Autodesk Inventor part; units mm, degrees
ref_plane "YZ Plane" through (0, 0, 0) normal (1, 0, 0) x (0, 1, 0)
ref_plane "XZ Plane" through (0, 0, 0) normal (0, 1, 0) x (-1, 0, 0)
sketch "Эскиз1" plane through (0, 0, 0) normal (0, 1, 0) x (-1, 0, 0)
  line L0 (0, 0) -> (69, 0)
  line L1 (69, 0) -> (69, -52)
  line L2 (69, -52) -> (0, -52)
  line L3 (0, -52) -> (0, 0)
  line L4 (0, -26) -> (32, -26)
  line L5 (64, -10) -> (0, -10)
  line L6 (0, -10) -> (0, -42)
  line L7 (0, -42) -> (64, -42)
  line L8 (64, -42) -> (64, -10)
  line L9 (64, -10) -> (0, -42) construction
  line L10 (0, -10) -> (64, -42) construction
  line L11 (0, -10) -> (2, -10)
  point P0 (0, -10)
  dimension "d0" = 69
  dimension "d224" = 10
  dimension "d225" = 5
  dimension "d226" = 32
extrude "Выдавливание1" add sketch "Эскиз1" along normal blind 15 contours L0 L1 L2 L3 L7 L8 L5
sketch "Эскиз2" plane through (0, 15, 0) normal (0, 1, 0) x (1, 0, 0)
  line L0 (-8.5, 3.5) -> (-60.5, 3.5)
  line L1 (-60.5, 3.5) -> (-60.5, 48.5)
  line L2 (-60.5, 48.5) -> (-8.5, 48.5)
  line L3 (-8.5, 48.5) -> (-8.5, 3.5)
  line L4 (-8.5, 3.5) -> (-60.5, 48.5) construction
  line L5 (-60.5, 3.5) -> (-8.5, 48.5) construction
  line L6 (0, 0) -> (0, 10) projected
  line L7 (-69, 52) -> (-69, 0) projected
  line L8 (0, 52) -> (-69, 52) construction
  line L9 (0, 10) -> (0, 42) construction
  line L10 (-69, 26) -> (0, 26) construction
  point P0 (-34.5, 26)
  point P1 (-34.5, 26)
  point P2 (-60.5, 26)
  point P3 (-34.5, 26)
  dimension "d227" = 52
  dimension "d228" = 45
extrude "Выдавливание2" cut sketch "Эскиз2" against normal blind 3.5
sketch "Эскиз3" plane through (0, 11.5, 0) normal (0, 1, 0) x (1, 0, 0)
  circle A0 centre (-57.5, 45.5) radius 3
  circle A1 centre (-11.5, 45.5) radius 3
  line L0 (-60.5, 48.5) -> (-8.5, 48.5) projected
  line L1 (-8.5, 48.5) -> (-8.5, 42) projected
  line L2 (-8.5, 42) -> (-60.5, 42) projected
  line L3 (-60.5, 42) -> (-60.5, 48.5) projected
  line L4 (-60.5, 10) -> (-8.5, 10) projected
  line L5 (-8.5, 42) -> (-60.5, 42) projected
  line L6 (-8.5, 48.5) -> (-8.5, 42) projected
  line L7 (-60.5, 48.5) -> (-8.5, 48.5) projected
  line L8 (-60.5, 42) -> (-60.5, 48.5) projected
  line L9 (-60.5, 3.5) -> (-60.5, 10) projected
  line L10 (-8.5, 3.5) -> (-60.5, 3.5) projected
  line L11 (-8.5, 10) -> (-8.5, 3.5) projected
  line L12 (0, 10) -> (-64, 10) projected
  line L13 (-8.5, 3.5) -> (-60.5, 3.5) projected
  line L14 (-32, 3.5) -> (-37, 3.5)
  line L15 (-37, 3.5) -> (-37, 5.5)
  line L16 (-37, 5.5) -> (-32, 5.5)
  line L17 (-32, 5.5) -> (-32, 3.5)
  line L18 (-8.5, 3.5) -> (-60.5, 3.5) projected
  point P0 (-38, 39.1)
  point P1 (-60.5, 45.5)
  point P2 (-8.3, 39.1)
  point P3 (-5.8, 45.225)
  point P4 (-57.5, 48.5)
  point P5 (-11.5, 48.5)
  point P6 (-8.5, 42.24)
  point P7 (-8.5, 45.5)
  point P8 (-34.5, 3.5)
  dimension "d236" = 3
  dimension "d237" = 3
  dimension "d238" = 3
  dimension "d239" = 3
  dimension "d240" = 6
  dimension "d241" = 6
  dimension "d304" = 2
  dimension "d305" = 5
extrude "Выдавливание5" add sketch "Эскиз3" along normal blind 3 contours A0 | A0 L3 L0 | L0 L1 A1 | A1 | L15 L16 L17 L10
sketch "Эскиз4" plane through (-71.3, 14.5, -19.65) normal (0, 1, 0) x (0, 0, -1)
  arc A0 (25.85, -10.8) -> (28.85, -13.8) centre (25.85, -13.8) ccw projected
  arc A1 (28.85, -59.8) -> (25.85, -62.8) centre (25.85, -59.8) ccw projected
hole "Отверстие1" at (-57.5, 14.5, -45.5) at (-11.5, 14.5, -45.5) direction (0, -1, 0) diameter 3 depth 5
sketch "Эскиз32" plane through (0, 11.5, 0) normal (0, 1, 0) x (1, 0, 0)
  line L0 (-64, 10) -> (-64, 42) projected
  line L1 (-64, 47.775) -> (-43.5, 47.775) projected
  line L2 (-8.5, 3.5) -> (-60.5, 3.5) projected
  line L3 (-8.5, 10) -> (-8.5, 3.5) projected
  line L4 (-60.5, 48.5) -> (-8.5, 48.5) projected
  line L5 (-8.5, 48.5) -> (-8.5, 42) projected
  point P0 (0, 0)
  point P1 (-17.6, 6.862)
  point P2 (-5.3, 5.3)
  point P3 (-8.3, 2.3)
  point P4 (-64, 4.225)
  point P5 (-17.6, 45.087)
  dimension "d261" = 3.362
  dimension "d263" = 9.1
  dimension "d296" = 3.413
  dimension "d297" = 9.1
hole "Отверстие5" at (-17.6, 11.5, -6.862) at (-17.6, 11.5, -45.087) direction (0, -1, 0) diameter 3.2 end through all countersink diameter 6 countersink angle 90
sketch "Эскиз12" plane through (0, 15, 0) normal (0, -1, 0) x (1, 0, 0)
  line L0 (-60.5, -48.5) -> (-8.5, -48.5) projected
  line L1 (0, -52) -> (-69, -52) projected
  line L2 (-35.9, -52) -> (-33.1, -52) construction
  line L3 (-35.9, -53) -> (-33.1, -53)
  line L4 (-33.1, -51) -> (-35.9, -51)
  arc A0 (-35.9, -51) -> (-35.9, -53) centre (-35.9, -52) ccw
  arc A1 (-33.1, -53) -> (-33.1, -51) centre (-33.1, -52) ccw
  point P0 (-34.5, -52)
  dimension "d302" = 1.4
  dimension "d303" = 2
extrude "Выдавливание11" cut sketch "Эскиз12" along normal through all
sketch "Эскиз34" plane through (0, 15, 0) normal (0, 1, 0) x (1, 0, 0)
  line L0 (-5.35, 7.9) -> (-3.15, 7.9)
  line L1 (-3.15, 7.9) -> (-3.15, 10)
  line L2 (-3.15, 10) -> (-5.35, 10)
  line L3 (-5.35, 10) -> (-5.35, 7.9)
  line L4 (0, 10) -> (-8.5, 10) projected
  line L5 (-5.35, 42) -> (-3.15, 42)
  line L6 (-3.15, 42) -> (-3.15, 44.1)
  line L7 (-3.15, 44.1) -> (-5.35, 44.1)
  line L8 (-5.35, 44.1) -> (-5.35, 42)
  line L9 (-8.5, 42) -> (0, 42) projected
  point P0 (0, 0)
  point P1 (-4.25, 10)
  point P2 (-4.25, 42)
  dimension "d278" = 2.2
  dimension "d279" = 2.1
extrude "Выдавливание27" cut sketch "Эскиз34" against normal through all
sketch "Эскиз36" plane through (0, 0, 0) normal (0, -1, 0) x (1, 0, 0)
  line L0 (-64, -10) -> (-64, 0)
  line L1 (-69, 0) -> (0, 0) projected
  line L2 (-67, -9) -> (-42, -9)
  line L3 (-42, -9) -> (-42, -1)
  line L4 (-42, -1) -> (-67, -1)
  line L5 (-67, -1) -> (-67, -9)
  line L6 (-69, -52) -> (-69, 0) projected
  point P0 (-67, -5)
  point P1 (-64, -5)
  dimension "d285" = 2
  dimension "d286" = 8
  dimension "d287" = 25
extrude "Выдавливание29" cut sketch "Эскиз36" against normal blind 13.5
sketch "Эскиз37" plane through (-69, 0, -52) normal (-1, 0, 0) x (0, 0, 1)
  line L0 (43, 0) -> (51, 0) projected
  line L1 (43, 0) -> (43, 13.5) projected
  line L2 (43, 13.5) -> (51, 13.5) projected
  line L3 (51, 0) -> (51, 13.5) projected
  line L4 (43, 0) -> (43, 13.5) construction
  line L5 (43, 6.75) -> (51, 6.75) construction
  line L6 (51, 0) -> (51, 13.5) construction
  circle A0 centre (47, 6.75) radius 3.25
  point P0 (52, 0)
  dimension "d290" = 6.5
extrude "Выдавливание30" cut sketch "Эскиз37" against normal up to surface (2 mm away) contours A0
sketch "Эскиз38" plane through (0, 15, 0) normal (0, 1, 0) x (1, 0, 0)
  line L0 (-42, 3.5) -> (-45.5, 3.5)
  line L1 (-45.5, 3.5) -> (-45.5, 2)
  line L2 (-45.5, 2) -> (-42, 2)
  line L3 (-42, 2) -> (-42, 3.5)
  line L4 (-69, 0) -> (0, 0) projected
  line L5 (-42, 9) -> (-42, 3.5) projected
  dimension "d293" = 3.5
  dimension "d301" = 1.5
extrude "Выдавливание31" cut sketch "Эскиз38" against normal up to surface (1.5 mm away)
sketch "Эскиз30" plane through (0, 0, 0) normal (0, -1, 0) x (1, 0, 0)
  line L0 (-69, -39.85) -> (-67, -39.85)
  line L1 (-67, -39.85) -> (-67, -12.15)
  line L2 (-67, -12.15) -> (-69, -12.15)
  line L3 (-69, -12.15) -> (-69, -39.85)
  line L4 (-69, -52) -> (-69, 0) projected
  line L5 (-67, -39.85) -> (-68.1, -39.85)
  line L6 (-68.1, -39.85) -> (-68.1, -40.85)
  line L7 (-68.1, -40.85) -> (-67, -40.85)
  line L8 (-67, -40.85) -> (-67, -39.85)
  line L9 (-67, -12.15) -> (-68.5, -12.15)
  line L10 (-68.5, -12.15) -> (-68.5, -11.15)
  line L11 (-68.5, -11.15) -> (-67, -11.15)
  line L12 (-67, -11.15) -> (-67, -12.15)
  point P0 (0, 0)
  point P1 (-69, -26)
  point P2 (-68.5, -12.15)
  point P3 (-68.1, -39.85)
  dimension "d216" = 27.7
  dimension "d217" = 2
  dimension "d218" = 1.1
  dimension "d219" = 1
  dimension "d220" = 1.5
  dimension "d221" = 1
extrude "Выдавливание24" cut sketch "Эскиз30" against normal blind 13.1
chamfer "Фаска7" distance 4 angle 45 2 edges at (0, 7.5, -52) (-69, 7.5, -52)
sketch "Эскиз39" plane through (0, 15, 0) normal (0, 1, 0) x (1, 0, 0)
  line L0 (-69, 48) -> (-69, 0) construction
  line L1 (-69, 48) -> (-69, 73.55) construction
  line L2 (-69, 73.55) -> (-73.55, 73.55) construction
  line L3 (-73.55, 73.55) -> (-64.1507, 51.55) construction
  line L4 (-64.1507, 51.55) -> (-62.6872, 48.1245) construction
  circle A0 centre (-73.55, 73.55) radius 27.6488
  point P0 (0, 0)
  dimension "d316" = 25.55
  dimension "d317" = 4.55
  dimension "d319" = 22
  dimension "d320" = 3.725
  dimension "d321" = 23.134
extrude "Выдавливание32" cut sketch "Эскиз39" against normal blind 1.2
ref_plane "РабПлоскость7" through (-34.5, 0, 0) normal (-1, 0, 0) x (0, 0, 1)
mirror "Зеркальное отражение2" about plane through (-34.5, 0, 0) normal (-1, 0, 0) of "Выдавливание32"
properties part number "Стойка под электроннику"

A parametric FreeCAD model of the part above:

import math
import FreeCAD as App
import Part
import Sketcher
from FreeCAD import Vector
Q = App.Units.Quantity


def edges_at(feature, points):
    """Names of the edges that pass closest to the given points."""
    edges = feature.Shape.Edges
    near = lambda p: min(range(len(edges)), key=lambda i: edges[i].distToShape(Part.Vertex(*p))[0])
    return sorted({f"Edge{near(p) + 1}" for p in points})

doc = App.newDocument("Part")
params = doc.addObject("Spreadsheet::Sheet", "Params")
for row, (alias, value) in enumerate([
    ("sketch1_width", "69 mm"),
    ("sketch1_height", "10 mm"),
    ("sketch1_height2", "32 mm"),
    ("pad1_length", "15 mm"),
    ("sketch2_width", "52 mm"),
    ("sketch2_height", "45 mm"),
    ("pocket1_length", "3.5 mm"),
    ("sketch3_radius", "3 mm"),
    ("sketch3_width", "5 mm"),
    ("sketch3_height", "2 mm"),
    ("pad2_length", "3 mm"),
    ("sketch4_diameter", "3 mm"),
    ("hole_diameter", "3 mm"),
    ("hole_depth", "5 mm"),
    ("sketch5_diameter", "3.2 mm"),
    ("hole2_diameter", "3.2 mm"),
    ("hole2_csink_diameter", "6 mm"),
    ("sketch6_radius", "1 mm"),
    ("sketch6_width", "2.8 mm"),
    ("sketch7_width", "2.2 mm"),
    ("sketch7_height", "2.1 mm"),
    ("sketch8_width", "25 mm"),
    ("sketch8_height", "8 mm"),
    ("pocket4_length", "13.5 mm"),
    ("sketch9_diameter", "6.5 mm"),
    ("pocket5_length", "2 mm"),
    ("sketch10_width", "3.5 mm"),
    ("sketch10_height", "1.5 mm"),
    ("pocket6_length", "1.5 mm"),
    ("sketch11_height", "1 mm"),
    ("sketch11_width", "1.1 mm"),
    ("sketch11_width2", "1.5 mm"),
    ("sketch11_height2", "27.7 mm"),
    ("pocket7_length", "13.1 mm"),
    ("chamfer_size", "4 mm"),
    ("pocket8_length", "1.2 mm"),
], start=1):
    params.set(f"A{row}", alias)
    params.set(f"B{row}", "=" + value)
    params.setAlias(f"B{row}", alias)

body = doc.addObject("PartDesign::Body", "Body")

# Sketch on XZ plane
sketch1 = body.newObject("Sketcher::SketchObject", "Sketch")
sketch1.AttachmentSupport = (doc.getObject("XZ_Plane"), [""])
sketch1.MapMode = "FlatFace"
sketch1.addGeometry(Part.LineSegment(Vector(-69, 0, 0), Vector(0, 0, 0)), False)
sketch1.addGeometry(Part.LineSegment(Vector(0, 0, 0), Vector(0, -10, 0)), False)
sketch1.addGeometry(Part.LineSegment(Vector(0, -10, 0), Vector(-64, -10, 0)), False)
sketch1.addGeometry(Part.LineSegment(Vector(-64, -10, 0), Vector(-64, -42, 0)), False)
sketch1.addGeometry(Part.LineSegment(Vector(-64, -42, 0), Vector(0, -42, 0)), False)
sketch1.addGeometry(Part.LineSegment(Vector(0, -42, 0), Vector(0, -52, 0)), False)
sketch1.addGeometry(Part.LineSegment(Vector(0, -52, 0), Vector(-69, -52, 0)), False)
sketch1.addGeometry(Part.LineSegment(Vector(-69, -52, 0), Vector(-69, 0, 0)), False)
sketch1.addConstraint(Sketcher.Constraint("Coincident", 0, 2, 1, 1))
sketch1.addConstraint(Sketcher.Constraint("Coincident", 1, 2, 2, 1))
sketch1.addConstraint(Sketcher.Constraint("Coincident", 2, 2, 3, 1))
sketch1.addConstraint(Sketcher.Constraint("Coincident", 3, 2, 4, 1))
sketch1.addConstraint(Sketcher.Constraint("Coincident", 4, 2, 5, 1))
sketch1.addConstraint(Sketcher.Constraint("Coincident", 5, 2, 6, 1))
sketch1.addConstraint(Sketcher.Constraint("Coincident", 6, 2, 7, 1))
sketch1.addConstraint(Sketcher.Constraint("Coincident", 7, 2, 0, 1))
sketch1.addConstraint(Sketcher.Constraint("Horizontal", 0))
sketch1.addConstraint(Sketcher.Constraint("Vertical", 1))
sketch1.addConstraint(Sketcher.Constraint("Horizontal", 2))
sketch1.addConstraint(Sketcher.Constraint("Vertical", 3))
sketch1.addConstraint(Sketcher.Constraint("Horizontal", 4))
sketch1.addConstraint(Sketcher.Constraint("Vertical", 5))
sketch1.addConstraint(Sketcher.Constraint("Horizontal", 6))
sketch1.addConstraint(Sketcher.Constraint("Vertical", 7))
sketch1.addConstraint(Sketcher.Constraint("Coincident", 0, 2, -1, 1))
sketch1.addConstraint(Sketcher.Constraint("PointOnObject", 4, 2, -2))
sketch1.addConstraint(Sketcher.Constraint("Equal", 1, 5))
sketch1.addConstraint(Sketcher.Constraint("DistanceX", 0, 1, 0, 2, Q("69 mm")))
sketch1.addConstraint(Sketcher.Constraint("DistanceY", 1, 2, 1, 1, Q("10 mm")))
sketch1.addConstraint(Sketcher.Constraint("DistanceY", 3, 2, 3, 1, Q("32 mm")))
sketch1.addConstraint(Sketcher.Constraint("DistanceX", 6, 2, 3, 2, Q("5 mm")))
sketch1.setExpression("Constraints[19]", "Params.sketch1_width")
sketch1.setExpression("Constraints[20]", "Params.sketch1_height")
sketch1.setExpression("Constraints[21]", "Params.sketch1_height2")
pad1 = body.newObject("PartDesign::Pad", "Pad")
pad1.Profile = sketch1
pad1.setExpression("Length", "Params.pad1_length")
pad1.Reversed = True

# Sketch on XZ plane
sketch2 = body.newObject("Sketcher::SketchObject", "Sketch001")
sketch2.AttachmentSupport = (doc.getObject("XZ_Plane"), [""])
sketch2.MapMode = "FlatFace"
sketch2.AttachmentOffset = App.Placement(Vector(0, 0, -15), App.Rotation())
sketch2.addGeometry(Part.LineSegment(Vector(-60, -4, 0), Vector(-8, -4, 0)), False)
sketch2.addGeometry(Part.LineSegment(Vector(-8, -4, 0), Vector(-8, -48, 0)), False)
sketch2.addGeometry(Part.LineSegment(Vector(-8, -48, 0), Vector(-60, -48, 0)), False)
sketch2.addGeometry(Part.LineSegment(Vector(-60, -48, 0), Vector(-60, -4, 0)), False)
sketch2.addConstraint(Sketcher.Constraint("Coincident", 0, 2, 1, 1))
sketch2.addConstraint(Sketcher.Constraint("Coincident", 1, 2, 2, 1))
sketch2.addConstraint(Sketcher.Constraint("Coincident", 2, 2, 3, 1))
sketch2.addConstraint(Sketcher.Constraint("Coincident", 3, 2, 0, 1))
sketch2.addConstraint(Sketcher.Constraint("Horizontal", 0))
sketch2.addConstraint(Sketcher.Constraint("Vertical", 1))
sketch2.addConstraint(Sketcher.Constraint("Horizontal", 2))
sketch2.addConstraint(Sketcher.Constraint("Vertical", 3))
sketch2.addConstraint(Sketcher.Constraint("DistanceX", 0, 1, 0, 2, Q("52 mm")))
sketch2.addConstraint(Sketcher.Constraint("DistanceY", 1, 2, 1, 1, Q("45 mm")))
sketch2.addConstraint(Sketcher.Constraint("DistanceX", 0, 2, -1, 1, Q("8.5 mm")))
sketch2.addConstraint(Sketcher.Constraint("DistanceY", 0, 2, -1, 1, Q("3.5 mm")))
sketch2.setExpression("Constraints[8]", "Params.sketch2_width")
sketch2.setExpression("Constraints[9]", "Params.sketch2_height")
pocket1 = body.newObject("PartDesign::Pocket", "Pocket")
pocket1.Profile = sketch2
pocket1.setExpression("Length", "Params.pocket1_length")
pocket1.Reversed = True

# Sketch on XZ plane
sketch3 = body.newObject("Sketcher::SketchObject", "Sketch002")
sketch3.AttachmentSupport = (doc.getObject("XZ_Plane"), [""])
sketch3.MapMode = "FlatFace"
sketch3.AttachmentOffset = App.Placement(Vector(0, 0, -11.5), App.Rotation())
sketch3.addGeometry(Part.ArcOfCircle(Part.Circle(Vector(-57.5, -45.5, 0), Vector(0, 0, 1), 3), math.radians(-90), math.radians(180)), False)
sketch3.addGeometry(Part.LineSegment(Vector(-57.5, -48.5, 0), Vector(-60.5, -48.5, 0)), False)
sketch3.addGeometry(Part.LineSegment(Vector(-60.5, -48.5, 0), Vector(-60.5, -45.5, 0)), False)
sketch3.addGeometry(Part.LineSegment(Vector(-8.5, -48.5, 0), Vector(-11.5, -48.5, 0)), False)
sketch3.addGeometry(Part.ArcOfCircle(Part.Circle(Vector(-11.5, -45.5, 0), Vector(0, 0, 1), 3), math.radians(0), math.radians(270)), False)
sketch3.addGeometry(Part.LineSegment(Vector(-8.5, -45.5, 0), Vector(-8.5, -48.5, 0)), False)
sketch3.addGeometry(Part.LineSegment(Vector(-37, -5.5, 0), Vector(-37, -3.5, 0)), False)
sketch3.addGeometry(Part.LineSegment(Vector(-37, -3.5, 0), Vector(-32, -3.5, 0)), False)
sketch3.addGeometry(Part.LineSegment(Vector(-32, -3.5, 0), Vector(-32, -5.5, 0)), False)
sketch3.addGeometry(Part.LineSegment(Vector(-32, -5.5, 0), Vector(-37, -5.5, 0)), False)
sketch3.addConstraint(Sketcher.Constraint("Tangent", 0, 1, 1, 1))
sketch3.addConstraint(Sketcher.Constraint("Coincident", 1, 2, 2, 1))
sketch3.addConstraint(Sketcher.Constraint("Tangent", 2, 2, 0, 2))
sketch3.addConstraint(Sketcher.Constraint("Tangent", 3, 2, 4, 2))
sketch3.addConstraint(Sketcher.Constraint("Tangent", 4, 1, 5, 1))
sketch3.addConstraint(Sketcher.Constraint("Coincident", 5, 2, 3, 1))
sketch3.addConstraint(Sketcher.Constraint("Coincident", 6, 2, 7, 1))
sketch3.addConstraint(Sketcher.Constraint("Coincident", 7, 2, 8, 1))
sketch3.addConstraint(Sketcher.Constraint("Coincident", 8, 2, 9, 1))
sketch3.addConstraint(Sketcher.Constraint("Coincident", 9, 2, 6, 1))
sketch3.addConstraint(Sketcher.Constraint("Horizontal", 1))
sketch3.addConstraint(Sketcher.Constraint("Vertical", 2))
sketch3.addConstraint(Sketcher.Constraint("Horizontal", 3))
sketch3.addConstraint(Sketcher.Constraint("Vertical", 5))
sketch3.addConstraint(Sketcher.Constraint("Vertical", 6))
sketch3.addConstraint(Sketcher.Constraint("Horizontal", 7))
sketch3.addConstraint(Sketcher.Constraint("Vertical", 8))
sketch3.addConstraint(Sketcher.Constraint("Horizontal", 9))
sketch3.addConstraint(Sketcher.Constraint("Equal", 0, 4))
sketch3.addConstraint(Sketcher.Constraint("Horizontal", 0, 3, 4, 3))
sketch3.addConstraint(Sketcher.Constraint("Radius", 0, Q("3 mm")))
sketch3.addConstraint(Sketcher.Constraint("DistanceX", 7, 1, 7, 2, Q("5 mm")))
sketch3.addConstraint(Sketcher.Constraint("DistanceY", 6, 1, 6, 2, Q("2 mm")))
sketch3.addConstraint(Sketcher.Constraint("DistanceX", 6, 2, -1, 1, Q("37 mm")))
sketch3.addConstraint(Sketcher.Constraint("DistanceX", 0, 3, 4, 3, Q("46 mm")))
sketch3.addConstraint(Sketcher.Constraint("DistanceY", 0, 3, 6, 2, Q("42 mm")))
sketch3.addConstraint(Sketcher.Constraint("DistanceX", 0, 3, -1, 1, Q("57.5 mm")))
sketch3.addConstraint(Sketcher.Constraint("DistanceY", 0, 3, -1, 1, Q("45.5 mm")))
sketch3.setExpression("Constraints[20]", "Params.sketch3_radius")
sketch3.setExpression("Constraints[21]", "Params.sketch3_width")
sketch3.setExpression("Constraints[22]", "Params.sketch3_height")
pad2 = body.newObject("PartDesign::Pad", "Pad001")
pad2.Profile = sketch3
pad2.setExpression("Length", "Params.pad2_length")
pad2.Reversed = True

# Sketch on XZ plane
sketch4 = body.newObject("Sketcher::SketchObject", "Sketch003")
sketch4.AttachmentSupport = (doc.getObject("XZ_Plane"), [""])
sketch4.MapMode = "FlatFace"
sketch4.AttachmentOffset = App.Placement(Vector(0, 0, -14.5), App.Rotation())
sketch4.addGeometry(Part.Circle(Vector(-57.5, -45.5, 0), Vector(0, 0, 1), 1.5), False)
sketch4.addGeometry(Part.Circle(Vector(-11.5, -45.5, 0), Vector(0, 0, 1), 1.5), False)
sketch4.addConstraint(Sketcher.Constraint("Equal", 0, 1))
sketch4.addConstraint(Sketcher.Constraint("Horizontal", 0, 3, 1, 3))
sketch4.addConstraint(Sketcher.Constraint("Diameter", 0, Q("3 mm")))
sketch4.addConstraint(Sketcher.Constraint("DistanceX", 0, 3, 1, 3, Q("46 mm")))
sketch4.addConstraint(Sketcher.Constraint("DistanceX", 0, 3, -1, 1, Q("57.5 mm")))
sketch4.addConstraint(Sketcher.Constraint("DistanceY", 0, 3, -1, 1, Q("45.5 mm")))
sketch4.setExpression("Constraints[2]", "Params.sketch4_diameter")
doc.recompute()
hole = body.newObject("PartDesign::Hole", "Hole")
hole.Profile = sketch4
hole.ThreadType = "None"
hole.setExpression("Diameter", "Params.hole_diameter")
hole.DepthType = "Dimension"
hole.setExpression("Depth", "Params.hole_depth")
hole.DrillPoint = "Flat"
hole.Reversed = True

# Sketch on XZ plane
sketch5 = body.newObject("Sketcher::SketchObject", "Sketch004")
sketch5.AttachmentSupport = (doc.getObject("XZ_Plane"), [""])
sketch5.MapMode = "FlatFace"
sketch5.AttachmentOffset = App.Placement(Vector(0, 0, -11.5), App.Rotation())
sketch5.addGeometry(Part.Circle(Vector(-17.6, -6.9, 0), Vector(0, 0, 1), 1.6), False)
sketch5.addGeometry(Part.Circle(Vector(-17.6, -45.1, 0), Vector(0, 0, 1), 1.6), False)
sketch5.addConstraint(Sketcher.Constraint("Equal", 0, 1))
sketch5.addConstraint(Sketcher.Constraint("Vertical", 0, 3, 1, 3))
sketch5.addConstraint(Sketcher.Constraint("Diameter", 0, Q("3.2 mm")))
sketch5.addConstraint(Sketcher.Constraint("DistanceX", 0, 3, -1, 1, Q("17.6 mm")))
sketch5.addConstraint(Sketcher.Constraint("DistanceY", 0, 3, -1, 1, Q("6.862 mm")))
sketch5.addConstraint(Sketcher.Constraint("DistanceY", 1, 3, -1, 1, Q("45.087 mm")))
sketch5.setExpression("Constraints[2]", "Params.sketch5_diameter")
doc.recompute()
hole2 = body.newObject("PartDesign::Hole", "Hole001")
hole2.Profile = sketch5
hole2.ThreadType = "None"
hole2.setExpression("Diameter", "Params.hole2_diameter")
hole2.DepthType = "ThroughAll"
hole2.HoleCutType = "Countersink"
hole2.setExpression("HoleCutDiameter", "Params.hole2_csink_diameter")
hole2.HoleCutCountersinkAngle = 90
hole2.Reversed = True

# Sketch on XZ plane
sketch6 = body.newObject("Sketcher::SketchObject", "Sketch005")
sketch6.AttachmentSupport = (doc.getObject("XZ_Plane"), [""])
sketch6.MapMode = "FlatFace"
sketch6.AttachmentOffset = App.Placement(Vector(0, 0, -15), App.Rotation())
sketch6.addGeometry(Part.ArcOfCircle(Part.Circle(Vector(-33.1, -52, 0), Vector(0, 0, 1), 1), math.radians(-90), math.radians(90)), False)
sketch6.addGeometry(Part.LineSegment(Vector(-33.1, -51, 0), Vector(-35.9, -51, 0)), False)
sketch6.addGeometry(Part.ArcOfCircle(Part.Circle(Vector(-35.9, -52, 0), Vector(0, 0, 1), 1), math.radians(90), math.radians(270)), False)
sketch6.addGeometry(Part.LineSegment(Vector(-35.9, -53, 0), Vector(-33.1, -53, 0)), False)
sketch6.addConstraint(Sketcher.Constraint("Tangent", 0, 2, 1, 1))
sketch6.addConstraint(Sketcher.Constraint("Tangent", 1, 2, 2, 1))
sketch6.addConstraint(Sketcher.Constraint("Tangent", 2, 2, 3, 1))
sketch6.addConstraint(Sketcher.Constraint("Tangent", 3, 2, 0, 1))
sketch6.addConstraint(Sketcher.Constraint("Horizontal", 1))
sketch6.addConstraint(Sketcher.Constraint("Horizontal", 3))
sketch6.addConstraint(Sketcher.Constraint("Radius", 0, Q("1 mm")))
sketch6.addConstraint(Sketcher.Constraint("DistanceX", 1, 2, 1, 1, Q("2.8 mm")))
sketch6.addConstraint(Sketcher.Constraint("DistanceY", 0, 3, -1, 1, Q("52 mm")))
sketch6.addConstraint(Sketcher.Constraint("DistanceX", 0, 3, -1, 1, Q("33.1 mm")))
sketch6.setExpression("Constraints[6]", "Params.sketch6_radius")
sketch6.setExpression("Constraints[7]", "Params.sketch6_width")
pocket2 = body.newObject("PartDesign::Pocket", "Pocket001")
pocket2.Profile = sketch6
pocket2.Type = "ThroughAll"
pocket2.Reversed = True

# Sketch on XZ plane
sketch7 = body.newObject("Sketcher::SketchObject", "Sketch006")
sketch7.AttachmentSupport = (doc.getObject("XZ_Plane"), [""])
sketch7.MapMode = "FlatFace"
sketch7.AttachmentOffset = App.Placement(Vector(0, 0, -15), App.Rotation())
sketch7.addGeometry(Part.LineSegment(Vector(-5.3, -10, 0), Vector(-5.3, -7.9, 0)), False)
sketch7.addGeometry(Part.LineSegment(Vector(-5.3, -7.9, 0), Vector(-3.1, -7.9, 0)), False)
sketch7.addGeometry(Part.LineSegment(Vector(-3.1, -7.9, 0), Vector(-3.1, -10, 0)), False)
sketch7.addGeometry(Part.LineSegment(Vector(-3.1, -10, 0), Vector(-5.3, -10, 0)), False)
sketch7.addGeometry(Part.LineSegment(Vector(-5.3, -44.1, 0), Vector(-5.3, -42, 0)), False)
sketch7.addGeometry(Part.LineSegment(Vector(-5.3, -42, 0), Vector(-3.1, -42, 0)), False)
sketch7.addGeometry(Part.LineSegment(Vector(-3.1, -42, 0), Vector(-3.1, -44.1, 0)), False)
sketch7.addGeometry(Part.LineSegment(Vector(-3.1, -44.1, 0), Vector(-5.3, -44.1, 0)), False)
sketch7.addConstraint(Sketcher.Constraint("Coincident", 0, 2, 1, 1))
sketch7.addConstraint(Sketcher.Constraint("Coincident", 1, 2, 2, 1))
sketch7.addConstraint(Sketcher.Constraint("Coincident", 2, 2, 3, 1))
sketch7.addConstraint(Sketcher.Constraint("Coincident", 3, 2, 0, 1))
sketch7.addConstraint(Sketcher.Constraint("Coincident", 4, 2, 5, 1))
sketch7.addConstraint(Sketcher.Constraint("Coincident", 5, 2, 6, 1))
sketch7.addConstraint(Sketcher.Constraint("Coincident", 6, 2, 7, 1))
sketch7.addConstraint(Sketcher.Constraint("Coincident", 7, 2, 4, 1))
sketch7.addConstraint(Sketcher.Constraint("Vertical", 0))
sketch7.addConstraint(Sketcher.Constraint("Horizontal", 1))
sketch7.addConstraint(Sketcher.Constraint("Vertical", 2))
sketch7.addConstraint(Sketcher.Constraint("Horizontal", 3))
sketch7.addConstraint(Sketcher.Constraint("Vertical", 4))
sketch7.addConstraint(Sketcher.Constraint("Horizontal", 5))
sketch7.addConstraint(Sketcher.Constraint("Vertical", 6))
sketch7.addConstraint(Sketcher.Constraint("Horizontal", 7))
sketch7.addConstraint(Sketcher.Constraint("Vertical", 3, 2, 4, 2))
sketch7.addConstraint(Sketcher.Constraint("Vertical", 2, 2, 5, 2))
sketch7.addConstraint(Sketcher.Constraint("Equal", 2, 4))
sketch7.addConstraint(Sketcher.Constraint("DistanceX", 1, 1, 1, 2, Q("2.2 mm")))
sketch7.addConstraint(Sketcher.Constraint("DistanceY", 0, 1, 0, 2, Q("2.1 mm")))
sketch7.addConstraint(Sketcher.Constraint("DistanceY", 2, 2, -1, 1, Q("10 mm")))
sketch7.addConstraint(Sketcher.Constraint("DistanceY", 4, 2, -1, 1, Q("42 mm")))
sketch7.addConstraint(Sketcher.Constraint("DistanceX", 0, 2, -1, 1, Q("5.35 mm")))
sketch7.setExpression("Constraints[19]", "Params.sketch7_width")
sketch7.setExpression("Constraints[20]", "Params.sketch7_height")
pocket3 = body.newObject("PartDesign::Pocket", "Pocket002")
pocket3.Profile = sketch7
pocket3.Type = "ThroughAll"
pocket3.Reversed = True

# Sketch on XZ plane
sketch8 = body.newObject("Sketcher::SketchObject", "Sketch007")
sketch8.AttachmentSupport = (doc.getObject("XZ_Plane"), [""])
sketch8.MapMode = "FlatFace"
sketch8.addGeometry(Part.LineSegment(Vector(-67, -9, 0), Vector(-42, -9, 0)), False)
sketch8.addGeometry(Part.LineSegment(Vector(-42, -9, 0), Vector(-42, -1, 0)), False)
sketch8.addGeometry(Part.LineSegment(Vector(-42, -1, 0), Vector(-67, -1, 0)), False)
sketch8.addGeometry(Part.LineSegment(Vector(-67, -1, 0), Vector(-67, -9, 0)), False)
sketch8.addConstraint(Sketcher.Constraint("Coincident", 0, 2, 1, 1))
sketch8.addConstraint(Sketcher.Constraint("Coincident", 1, 2, 2, 1))
sketch8.addConstraint(Sketcher.Constraint("Coincident", 2, 2, 3, 1))
sketch8.addConstraint(Sketcher.Constraint("Coincident", 3, 2, 0, 1))
sketch8.addConstraint(Sketcher.Constraint("Horizontal", 0))
sketch8.addConstraint(Sketcher.Constraint("Vertical", 1))
sketch8.addConstraint(Sketcher.Constraint("Horizontal", 2))
sketch8.addConstraint(Sketcher.Constraint("Vertical", 3))
sketch8.addConstraint(Sketcher.Constraint("DistanceX", 0, 1, 0, 2, Q("25 mm")))
sketch8.addConstraint(Sketcher.Constraint("DistanceY", 1, 1, 1, 2, Q("8 mm")))
sketch8.addConstraint(Sketcher.Constraint("DistanceX", 0, 2, -1, 1, Q("42 mm")))
sketch8.addConstraint(Sketcher.Constraint("DistanceY", 0, 2, -1, 1, Q("9 mm")))
sketch8.setExpression("Constraints[8]", "Params.sketch8_width")
sketch8.setExpression("Constraints[9]", "Params.sketch8_height")
pocket4 = body.newObject("PartDesign::Pocket", "Pocket003")
pocket4.Profile = sketch8
pocket4.setExpression("Length", "Params.pocket4_length")

# Sketch on YZ plane
sketch9 = body.newObject("Sketcher::SketchObject", "Sketch008")
sketch9.AttachmentSupport = (doc.getObject("YZ_Plane"), [""])
sketch9.MapMode = "FlatFace"
sketch9.AttachmentOffset = App.Placement(Vector(0, 0, -69), App.Rotation())
sketch9.addGeometry(Part.Circle(Vector(6.8, -5, 0), Vector(0, 0, 1), 3.2), False)
sketch9.addConstraint(Sketcher.Constraint("Diameter", 0, Q("6.5 mm")))
sketch9.addConstraint(Sketcher.Constraint("DistanceY", 0, 3, -1, 1, Q("5 mm")))
sketch9.addConstraint(Sketcher.Constraint("DistanceX", -1, 1, 0, 3, Q("6.75 mm")))
sketch9.setExpression("Constraints[0]", "Params.sketch9_diameter")
pocket5 = body.newObject("PartDesign::Pocket", "Pocket004")
pocket5.Profile = sketch9
pocket5.setExpression("Length", "Params.pocket5_length")
pocket5.Reversed = True

# Sketch on XZ plane
sketch10 = body.newObject("Sketcher::SketchObject", "Sketch009")
sketch10.AttachmentSupport = (doc.getObject("XZ_Plane"), [""])
sketch10.MapMode = "FlatFace"
sketch10.AttachmentOffset = App.Placement(Vector(0, 0, -15), App.Rotation())
sketch10.addGeometry(Part.LineSegment(Vector(-42, -2, 0), Vector(-42, -3.5, 0)), False)
sketch10.addGeometry(Part.LineSegment(Vector(-42, -3.5, 0), Vector(-45.5, -3.5, 0)), False)
sketch10.addGeometry(Part.LineSegment(Vector(-45.5, -3.5, 0), Vector(-45.5, -2, 0)), False)
sketch10.addGeometry(Part.LineSegment(Vector(-45.5, -2, 0), Vector(-42, -2, 0)), False)
sketch10.addConstraint(Sketcher.Constraint("Coincident", 0, 2, 1, 1))
sketch10.addConstraint(Sketcher.Constraint("Coincident", 1, 2, 2, 1))
sketch10.addConstraint(Sketcher.Constraint("Coincident", 2, 2, 3, 1))
sketch10.addConstraint(Sketcher.Constraint("Coincident", 3, 2, 0, 1))
sketch10.addConstraint(Sketcher.Constraint("Vertical", 0))
sketch10.addConstraint(Sketcher.Constraint("Horizontal", 1))
sketch10.addConstraint(Sketcher.Constraint("Vertical", 2))
sketch10.addConstraint(Sketcher.Constraint("Horizontal", 3))
sketch10.addConstraint(Sketcher.Constraint("DistanceX", 1, 2, 1, 1, Q("3.5 mm")))
sketch10.addConstraint(Sketcher.Constraint("DistanceY", 0, 2, 0, 1, Q("1.5 mm")))
sketch10.addConstraint(Sketcher.Constraint("DistanceY", 0, 2, -1, 1, Q("3.5 mm")))
sketch10.addConstraint(Sketcher.Constraint("DistanceX", 0, 2, -1, 1, Q("42 mm")))
sketch10.setExpression("Constraints[8]", "Params.sketch10_width")
sketch10.setExpression("Constraints[9]", "Params.sketch10_height")
pocket6 = body.newObject("PartDesign::Pocket", "Pocket005")
pocket6.Profile = sketch10
pocket6.setExpression("Length", "Params.pocket6_length")
pocket6.Reversed = True

# Sketch on XZ plane
sketch11 = body.newObject("Sketcher::SketchObject", "Sketch010")
sketch11.AttachmentSupport = (doc.getObject("XZ_Plane"), [""])
sketch11.MapMode = "FlatFace"
sketch11.addGeometry(Part.LineSegment(Vector(-69, -12.2, 0), Vector(-69, -39.9, 0)), False)
sketch11.addGeometry(Part.LineSegment(Vector(-69, -39.9, 0), Vector(-68.1, -39.9, 0)), False)
sketch11.addGeometry(Part.LineSegment(Vector(-68.1, -39.9, 0), Vector(-68.1, -40.9, 0)), False)
sketch11.addGeometry(Part.LineSegment(Vector(-68.1, -40.9, 0), Vector(-67, -40.9, 0)), False)
sketch11.addGeometry(Part.LineSegment(Vector(-67, -40.9, 0), Vector(-67, -11.2, 0)), False)
sketch11.addGeometry(Part.LineSegment(Vector(-67, -11.2, 0), Vector(-68.5, -11.2, 0)), False)
sketch11.addGeometry(Part.LineSegment(Vector(-68.5, -11.2, 0), Vector(-68.5, -12.2, 0)), False)
sketch11.addGeometry(Part.LineSegment(Vector(-68.5, -12.2, 0), Vector(-69, -12.2, 0)), False)
sketch11.addConstraint(Sketcher.Constraint("Coincident", 0, 2, 1, 1))
sketch11.addConstraint(Sketcher.Constraint("Coincident", 1, 2, 2, 1))
sketch11.addConstraint(Sketcher.Constraint("Coincident", 2, 2, 3, 1))
sketch11.addConstraint(Sketcher.Constraint("Coincident", 3, 2, 4, 1))
sketch11.addConstraint(Sketcher.Constraint("Coincident", 4, 2, 5, 1))
sketch11.addConstraint(Sketcher.Constraint("Coincident", 5, 2, 6, 1))
sketch11.addConstraint(Sketcher.Constraint("Coincident", 6, 2, 7, 1))
sketch11.addConstraint(Sketcher.Constraint("Coincident", 7, 2, 0, 1))
sketch11.addConstraint(Sketcher.Constraint("Vertical", 0))
sketch11.addConstraint(Sketcher.Constraint("Horizontal", 1))
sketch11.addConstraint(Sketcher.Constraint("Vertical", 2))
sketch11.addConstraint(Sketcher.Constraint("Horizontal", 3))
sketch11.addConstraint(Sketcher.Constraint("Vertical", 4))
sketch11.addConstraint(Sketcher.Constraint("Horizontal", 5))
sketch11.addConstraint(Sketcher.Constraint("Vertical", 6))
sketch11.addConstraint(Sketcher.Constraint("Horizontal", 7))
sketch11.addConstraint(Sketcher.Constraint("Equal", 2, 6))
sketch11.addConstraint(Sketcher.Constraint("DistanceY", 2, 2, 2, 1, Q("1 mm")))
sketch11.addConstraint(Sketcher.Constraint("DistanceX", 3, 1, 3, 2, Q("1.1 mm")))
sketch11.addConstraint(Sketcher.Constraint("DistanceX", 5, 2, 5, 1, Q("1.5 mm")))
sketch11.addConstraint(Sketcher.Constraint("DistanceY", 0, 2, 0, 1, Q("27.7 mm")))
sketch11.addConstraint(Sketcher.Constraint("DistanceX", 0, 2, 3, 2, Q("2 mm")))
sketch11.addConstraint(Sketcher.Constraint("DistanceX", 0, 2, -1, 1, Q("69 mm")))
sketch11.addConstraint(Sketcher.Constraint("DistanceY", 0, 2, -1, 1, Q("39.85 mm")))
sketch11.setExpression("Constraints[17]", "Params.sketch11_height")
sketch11.setExpression("Constraints[18]", "Params.sketch11_width")
sketch11.setExpression("Constraints[19]", "Params.sketch11_width2")
sketch11.setExpression("Constraints[20]", "Params.sketch11_height2")
pocket7 = body.newObject("PartDesign::Pocket", "Pocket006")
pocket7.Profile = sketch11
pocket7.setExpression("Length", "Params.pocket7_length")
doc.recompute()

chamfer = body.newObject("PartDesign::Chamfer", "Chamfer")
chamfer.Base = (pocket7, edges_at(pocket7, [(0, 7.5, -52), (-69, 7.5, -52)]))
chamfer.setExpression("Size", "Params.chamfer_size")

# Sketch on XZ plane
sketch12 = body.newObject("Sketcher::SketchObject", "Sketch011")
sketch12.AttachmentSupport = (doc.getObject("XZ_Plane"), [""])
sketch12.MapMode = "FlatFace"
sketch12.AttachmentOffset = App.Placement(Vector(0, 0, -15), App.Rotation())
sketch12.addGeometry(Part.Circle(Vector(-74, -74, 0), Vector(0, 0, 1), 28), False)
sketch12.addConstraint(Sketcher.Constraint("Diameter", 0, Q("55.2976 mm")))
sketch12.addConstraint(Sketcher.Constraint("DistanceX", 0, 3, -1, 1, Q("73.55 mm")))
sketch12.addConstraint(Sketcher.Constraint("DistanceY", 0, 3, -1, 1, Q("73.55 mm")))
pocket8 = body.newObject("PartDesign::Pocket", "Pocket007")
pocket8.Profile = sketch12
pocket8.setExpression("Length", "Params.pocket8_length")
pocket8.Reversed = True
doc.recompute()

datumplane = body.newObject("PartDesign::Plane", "DatumPlane")
datumplane.AttachmentSupport = (doc.getObject("YZ_Plane"), [""])
datumplane.MapMode = "FlatFace"
datumplane.AttachmentOffset = App.Placement(Vector(0, 0, -34.5), App.Rotation())
mirrored = body.newObject("PartDesign::Mirrored", "Mirrored")
mirrored.Originals = [pocket8]
mirrored.MirrorPlane = (datumplane, [""])
body.Tip = mirrored

doc.recompute()
